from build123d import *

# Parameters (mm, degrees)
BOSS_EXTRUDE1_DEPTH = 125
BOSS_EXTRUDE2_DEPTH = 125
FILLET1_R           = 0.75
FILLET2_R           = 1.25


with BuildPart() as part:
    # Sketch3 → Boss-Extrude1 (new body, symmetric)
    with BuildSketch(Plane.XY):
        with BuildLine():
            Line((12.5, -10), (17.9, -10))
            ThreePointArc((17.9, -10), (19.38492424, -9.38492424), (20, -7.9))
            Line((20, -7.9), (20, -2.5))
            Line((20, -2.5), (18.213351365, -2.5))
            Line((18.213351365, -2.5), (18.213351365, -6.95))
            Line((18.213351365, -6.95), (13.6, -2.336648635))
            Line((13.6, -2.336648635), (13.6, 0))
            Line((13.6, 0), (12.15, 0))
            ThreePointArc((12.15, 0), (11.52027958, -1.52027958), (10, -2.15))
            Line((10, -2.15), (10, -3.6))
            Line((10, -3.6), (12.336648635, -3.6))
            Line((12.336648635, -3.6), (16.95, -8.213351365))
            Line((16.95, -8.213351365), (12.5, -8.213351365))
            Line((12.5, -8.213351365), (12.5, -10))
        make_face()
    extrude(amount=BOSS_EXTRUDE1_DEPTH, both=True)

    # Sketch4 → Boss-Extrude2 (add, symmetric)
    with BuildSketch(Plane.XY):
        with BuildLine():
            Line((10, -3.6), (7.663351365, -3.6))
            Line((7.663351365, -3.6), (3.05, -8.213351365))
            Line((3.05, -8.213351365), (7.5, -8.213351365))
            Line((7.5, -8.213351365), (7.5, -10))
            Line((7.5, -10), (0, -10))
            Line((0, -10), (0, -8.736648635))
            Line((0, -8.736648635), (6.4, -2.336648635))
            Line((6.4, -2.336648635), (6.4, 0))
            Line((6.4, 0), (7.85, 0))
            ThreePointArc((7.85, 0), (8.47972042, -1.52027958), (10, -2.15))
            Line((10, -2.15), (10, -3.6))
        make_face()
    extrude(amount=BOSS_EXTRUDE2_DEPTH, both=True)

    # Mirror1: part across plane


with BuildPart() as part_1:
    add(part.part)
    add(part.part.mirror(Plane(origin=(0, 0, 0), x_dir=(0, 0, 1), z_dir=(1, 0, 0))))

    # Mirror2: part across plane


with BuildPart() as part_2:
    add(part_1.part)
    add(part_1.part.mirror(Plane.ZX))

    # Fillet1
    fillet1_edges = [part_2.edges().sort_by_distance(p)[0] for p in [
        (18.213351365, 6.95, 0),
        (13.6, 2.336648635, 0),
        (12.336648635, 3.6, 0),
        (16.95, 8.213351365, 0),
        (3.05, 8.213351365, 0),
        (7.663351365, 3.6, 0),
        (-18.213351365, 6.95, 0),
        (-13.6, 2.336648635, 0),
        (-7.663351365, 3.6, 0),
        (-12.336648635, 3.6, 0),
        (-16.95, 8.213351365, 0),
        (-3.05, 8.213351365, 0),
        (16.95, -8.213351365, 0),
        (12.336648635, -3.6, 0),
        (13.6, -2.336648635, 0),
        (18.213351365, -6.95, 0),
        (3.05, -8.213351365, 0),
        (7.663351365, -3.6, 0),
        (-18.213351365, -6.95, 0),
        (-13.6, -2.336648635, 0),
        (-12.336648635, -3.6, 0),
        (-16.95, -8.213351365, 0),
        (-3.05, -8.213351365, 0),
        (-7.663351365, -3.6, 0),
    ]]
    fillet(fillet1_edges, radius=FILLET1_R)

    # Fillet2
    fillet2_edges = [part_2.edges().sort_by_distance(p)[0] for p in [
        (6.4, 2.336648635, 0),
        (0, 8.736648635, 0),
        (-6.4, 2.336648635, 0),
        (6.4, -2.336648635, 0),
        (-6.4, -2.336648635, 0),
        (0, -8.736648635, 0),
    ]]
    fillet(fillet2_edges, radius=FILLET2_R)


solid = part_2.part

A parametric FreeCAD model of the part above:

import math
import FreeCAD as App
import Part
import Sketcher
from FreeCAD import Vector
Q = App.Units.Quantity


def edges_at(feature, points):
    """Names of the edges that pass closest to the given points."""
    edges = feature.Shape.Edges
    near = lambda p: min(range(len(edges)), key=lambda i: edges[i].distToShape(Part.Vertex(*p))[0])
    return sorted({f"Edge{near(p) + 1}" for p in points})

doc = App.newDocument("Part")
body = doc.addObject("PartDesign::Body", "Body")

# Sketch on XY plane
sketch1 = body.newObject("Sketcher::SketchObject", "Sketch")
sketch1.AttachmentSupport = (doc.getObject("XY_Plane"), [""])
sketch1.MapMode = "FlatFace"
sketch1.addGeometry([
    Part.LineSegment(Vector(12.5, -10, 0), Vector(17.9, -10, 0)),  # 0
    Part.ArcOfCircle(Part.Circle(Vector(17.9, -7.9, 0), Vector(0, 0, 1), 2.1), math.radians(-90), math.radians(0)),  # 1
    Part.LineSegment(Vector(20, -7.9, 0), Vector(20, -2.5, 0)),  # 2
    Part.LineSegment(Vector(20, -2.5, 0), Vector(18.2, -2.5, 0)),  # 3
    Part.LineSegment(Vector(18.2, -2.5, 0), Vector(18.2, -7, 0)),  # 4
    Part.LineSegment(Vector(18.2, -7, 0), Vector(13.6, -2.3, 0)),  # 5
    Part.LineSegment(Vector(13.6, -2.3, 0), Vector(13.6, 0, 0)),  # 6
    Part.LineSegment(Vector(13.6, 0, 0), Vector(12.2, 0, 0)),  # 7
    Part.ArcOfCircle(Part.Circle(Vector(10, 0, 0), Vector(0, 0, 1), 2.1), math.radians(-90), math.radians(0)),  # 8
    Part.LineSegment(Vector(10, -2.1, 0), Vector(10, -3.6, 0)),  # 9
    Part.LineSegment(Vector(10, -3.6, 0), Vector(12.3, -3.6, 0)),  # 10
    Part.LineSegment(Vector(12.3, -3.6, 0), Vector(16.9, -8.2, 0)),  # 11
    Part.LineSegment(Vector(16.9, -8.2, 0), Vector(12.5, -8.2, 0)),  # 12
    Part.LineSegment(Vector(12.5, -8.2, 0), Vector(12.5, -10, 0)),  # 13
], False)
sketch1.addConstraint([
    Sketcher.Constraint("Tangent", 0, 2, 1, 1),
    Sketcher.Constraint("Tangent", 1, 2, 2, 1),
    Sketcher.Constraint("Coincident", 2, 2, 3, 1),
    Sketcher.Constraint("Coincident", 3, 2, 4, 1),
    Sketcher.Constraint("Coincident", 4, 2, 5, 1),
    Sketcher.Constraint("Coincident", 5, 2, 6, 1),
    Sketcher.Constraint("Coincident", 6, 2, 7, 1),
    Sketcher.Constraint("Coincident", 7, 2, 8, 2),
    Sketcher.Constraint("Coincident", 8, 1, 9, 1),
    Sketcher.Constraint("Coincident", 9, 2, 10, 1),
    Sketcher.Constraint("Coincident", 10, 2, 11, 1),
    Sketcher.Constraint("Coincident", 11, 2, 12, 1),
    Sketcher.Constraint("Coincident", 12, 2, 13, 1),
    Sketcher.Constraint("Coincident", 13, 2, 0, 1),
    Sketcher.Constraint("Horizontal", 0),
    Sketcher.Constraint("Vertical", 2),
    Sketcher.Constraint("Horizontal", 3),
    Sketcher.Constraint("Vertical", 4),
    Sketcher.Constraint("Vertical", 6),
    Sketcher.Constraint("Horizontal", 7),
    Sketcher.Constraint("Vertical", 9),
    Sketcher.Constraint("Horizontal", 10),
    Sketcher.Constraint("Horizontal", 12),
    Sketcher.Constraint("Vertical", 13),
    Sketcher.Constraint("PointOnObject", 8, 3, -1),
    Sketcher.Constraint("PointOnObject", 6, 2, -1),
    Sketcher.Constraint("Parallel", 5, 11),
    Sketcher.Constraint("Equal", 0, 2),
    Sketcher.Constraint("Equal", 12, 4),
    Sketcher.Constraint("Equal", 10, 6),
    Sketcher.Constraint("Equal", 7, 9),
    Sketcher.Constraint("Equal", 3, 13),
    Sketcher.Constraint("Equal", 5, 11),
    Sketcher.Constraint("Radius", 1, 2.1),
    Sketcher.Constraint("Angle", 5, Q("135 deg")),
    Sketcher.Constraint("Radius", 8, 2.15),
    Sketcher.Constraint("DistanceX", 0, 1, 0, 2, 5.4),
    Sketcher.Constraint("DistanceX", -1, 1, 8, 3, 10.0),
    Sketcher.Constraint("DistanceY", 0, 2, -1, 1, 10.0),
    Sketcher.Constraint("DistanceX", 7, 2, 7, 1, 1.45),
    Sketcher.Constraint("DistanceX", 12, 2, 12, 1, 4.45),
    Sketcher.Constraint("DistanceX", 3, 2, 3, 1, 1.786649),
])
pad1 = body.newObject("PartDesign::Pad", "Pad")
pad1.Profile = sketch1
pad1.Length = 250
pad1.Midplane = True

# Sketch on XY plane
sketch2 = body.newObject("Sketcher::SketchObject", "Sketch001")
sketch2.AttachmentSupport = (doc.getObject("XY_Plane"), [""])
sketch2.MapMode = "FlatFace"
sketch2.addGeometry([
    Part.LineSegment(Vector(7.7, -3.6, 0), Vector(10, -3.6, 0)),  # 0
    Part.LineSegment(Vector(10, -3.6, 0), Vector(10, -2.1, 0)),  # 1
    Part.ArcOfCircle(Part.Circle(Vector(10, 0, 0), Vector(0, 0, 1), 2.1), math.radians(180), math.radians(270)),  # 2
    Part.LineSegment(Vector(7.8, 0, 0), Vector(6.4, 0, 0)),  # 3
    Part.LineSegment(Vector(6.4, 0, 0), Vector(6.4, -2.3, 0)),  # 4
    Part.LineSegment(Vector(6.4, -2.3, 0), Vector(0, -8.7, 0)),  # 5
    Part.LineSegment(Vector(0, -8.7, 0), Vector(0, -10, 0)),  # 6
    Part.LineSegment(Vector(0, -10, 0), Vector(7.5, -10, 0)),  # 7
    Part.LineSegment(Vector(7.5, -10, 0), Vector(7.5, -8.2, 0)),  # 8
    Part.LineSegment(Vector(7.5, -8.2, 0), Vector(3, -8.2, 0)),  # 9
    Part.LineSegment(Vector(3, -8.2, 0), Vector(7.7, -3.6, 0)),  # 10
], False)
sketch2.addConstraint([
    Sketcher.Constraint("Coincident", 0, 2, 1, 1),
    Sketcher.Constraint("Coincident", 1, 2, 2, 2),
    Sketcher.Constraint("Coincident", 2, 1, 3, 1),
    Sketcher.Constraint("Coincident", 3, 2, 4, 1),
    Sketcher.Constraint("Coincident", 4, 2, 5, 1),
    Sketcher.Constraint("Coincident", 5, 2, 6, 1),
    Sketcher.Constraint("Coincident", 6, 2, 7, 1),
    Sketcher.Constraint("Coincident", 7, 2, 8, 1),
    Sketcher.Constraint("Coincident", 8, 2, 9, 1),
    Sketcher.Constraint("Coincident", 9, 2, 10, 1),
    Sketcher.Constraint("Coincident", 10, 2, 0, 1),
    Sketcher.Constraint("Horizontal", 0),
    Sketcher.Constraint("Vertical", 1),
    Sketcher.Constraint("Horizontal", 3),
    Sketcher.Constraint("Vertical", 4),
    Sketcher.Constraint("Vertical", 6),
    Sketcher.Constraint("Horizontal", 7),
    Sketcher.Constraint("Vertical", 8),
    Sketcher.Constraint("Horizontal", 9),
    Sketcher.Constraint("PointOnObject", 2, 3, -1),
    Sketcher.Constraint("PointOnObject", 2, 1, -1),
    Sketcher.Constraint("PointOnObject", 5, 2, -2),
    Sketcher.Constraint("Parallel", 5, 10),
    Sketcher.Constraint("Vertical", 2, 3, 0, 2),
    Sketcher.Constraint("Equal", 3, 1),
    Sketcher.Constraint("Equal", 0, 4),
    Sketcher.Constraint("Angle", 5, Q("-135 deg")),
    Sketcher.Constraint("Radius", 2, 2.15),
    Sketcher.Constraint("DistanceX", 7, 1, 7, 2, 7.5),
    Sketcher.Constraint("DistanceX", -1, 1, 2, 3, 10.0),
    Sketcher.Constraint("DistanceY", 6, 2, -1, 1, 10.0),
    Sketcher.Constraint("DistanceX", 3, 2, 3, 1, 1.45),
    Sketcher.Constraint("DistanceX", 9, 2, 9, 1, 4.45),
    Sketcher.Constraint("DistanceX", 0, 1, 0, 2, 2.336649),
])
pad2 = body.newObject("PartDesign::Pad", "Pad001")
pad2.Profile = sketch2
pad2.Length = 250
pad2.Midplane = True
body2 = doc.addObject("PartDesign::Body", "Body001")
doc.recompute()

body2.BaseFeature = body
doc.recompute()

mirroring = doc.addObject("Part::Mirroring", "Mirroring")
mirroring.Source = body
mirroring.Base = Vector(0, 0, 0)
mirroring.Normal = Vector(1, 0, 0)
body3 = doc.addObject("PartDesign::Body", "Body002")
body3.BaseFeature = mirroring
boolean = body2.newObject("PartDesign::Boolean", "Boolean")
boolean.Type = "Fuse"
boolean.addObjects([body3])
doc.recompute()
body4 = doc.addObject("PartDesign::Body", "Body003")
doc.recompute()

body4.BaseFeature = body2
doc.recompute()

mirroring2 = doc.addObject("Part::Mirroring", "Mirroring001")
mirroring2.Source = body2
mirroring2.Base = Vector(0, 0, 0)
mirroring2.Normal = Vector(0, 1, 0)
body5 = doc.addObject("PartDesign::Body", "Body004")
body5.BaseFeature = mirroring2
boolean2 = body4.newObject("PartDesign::Boolean", "Boolean001")
boolean2.Type = "Fuse"
boolean2.addObjects([body5])
doc.recompute()

fillet = body4.newObject("PartDesign::Fillet", "Fillet")
fillet.Base = (boolean2, edges_at(boolean2, [
    (18.213, 6.95, 0),
    (13.6, 2.337, 0),
    (12.337, 3.6, 0),
    (16.95, 8.213, 0),
    (3.05, 8.213, 0),
    (7.663, 3.6, 0),
    (-18.213, 6.95, 0),
    (-13.6, 2.337, 0),
    (-7.663, 3.6, 0),
    (-12.337, 3.6, 0),
    (-16.95, 8.213, 0),
    (-3.05, 8.213, 0),
    (16.95, -8.213, 0),
    (12.337, -3.6, 0),
    (13.6, -2.337, 0),
    (18.213, -6.95, 0),
    (3.05, -8.213, 0),
    (7.663, -3.6, 0),
    (-18.213, -6.95, 0),
    (-13.6, -2.337, 0),
    (-12.337, -3.6, 0),
    (-16.95, -8.213, 0),
    (-3.05, -8.213, 0),
    (-7.663, -3.6, 0),
]))
fillet.Radius = 0.75
doc.recompute()

fillet2 = body4.newObject("PartDesign::Fillet", "Fillet001")
fillet2.Base = (fillet, edges_at(fillet, [
    (6.4, 2.337, 0),
    (0, 8.737, 0),
    (-6.4, 2.337, 0),
    (6.4, -2.337, 0),
    (-6.4, -2.337, 0),
    (0, -8.737, 0),
]))
fillet2.Radius = 1.25
mirroring.Visibility = False
mirroring2.Visibility = False

doc.recompute()
